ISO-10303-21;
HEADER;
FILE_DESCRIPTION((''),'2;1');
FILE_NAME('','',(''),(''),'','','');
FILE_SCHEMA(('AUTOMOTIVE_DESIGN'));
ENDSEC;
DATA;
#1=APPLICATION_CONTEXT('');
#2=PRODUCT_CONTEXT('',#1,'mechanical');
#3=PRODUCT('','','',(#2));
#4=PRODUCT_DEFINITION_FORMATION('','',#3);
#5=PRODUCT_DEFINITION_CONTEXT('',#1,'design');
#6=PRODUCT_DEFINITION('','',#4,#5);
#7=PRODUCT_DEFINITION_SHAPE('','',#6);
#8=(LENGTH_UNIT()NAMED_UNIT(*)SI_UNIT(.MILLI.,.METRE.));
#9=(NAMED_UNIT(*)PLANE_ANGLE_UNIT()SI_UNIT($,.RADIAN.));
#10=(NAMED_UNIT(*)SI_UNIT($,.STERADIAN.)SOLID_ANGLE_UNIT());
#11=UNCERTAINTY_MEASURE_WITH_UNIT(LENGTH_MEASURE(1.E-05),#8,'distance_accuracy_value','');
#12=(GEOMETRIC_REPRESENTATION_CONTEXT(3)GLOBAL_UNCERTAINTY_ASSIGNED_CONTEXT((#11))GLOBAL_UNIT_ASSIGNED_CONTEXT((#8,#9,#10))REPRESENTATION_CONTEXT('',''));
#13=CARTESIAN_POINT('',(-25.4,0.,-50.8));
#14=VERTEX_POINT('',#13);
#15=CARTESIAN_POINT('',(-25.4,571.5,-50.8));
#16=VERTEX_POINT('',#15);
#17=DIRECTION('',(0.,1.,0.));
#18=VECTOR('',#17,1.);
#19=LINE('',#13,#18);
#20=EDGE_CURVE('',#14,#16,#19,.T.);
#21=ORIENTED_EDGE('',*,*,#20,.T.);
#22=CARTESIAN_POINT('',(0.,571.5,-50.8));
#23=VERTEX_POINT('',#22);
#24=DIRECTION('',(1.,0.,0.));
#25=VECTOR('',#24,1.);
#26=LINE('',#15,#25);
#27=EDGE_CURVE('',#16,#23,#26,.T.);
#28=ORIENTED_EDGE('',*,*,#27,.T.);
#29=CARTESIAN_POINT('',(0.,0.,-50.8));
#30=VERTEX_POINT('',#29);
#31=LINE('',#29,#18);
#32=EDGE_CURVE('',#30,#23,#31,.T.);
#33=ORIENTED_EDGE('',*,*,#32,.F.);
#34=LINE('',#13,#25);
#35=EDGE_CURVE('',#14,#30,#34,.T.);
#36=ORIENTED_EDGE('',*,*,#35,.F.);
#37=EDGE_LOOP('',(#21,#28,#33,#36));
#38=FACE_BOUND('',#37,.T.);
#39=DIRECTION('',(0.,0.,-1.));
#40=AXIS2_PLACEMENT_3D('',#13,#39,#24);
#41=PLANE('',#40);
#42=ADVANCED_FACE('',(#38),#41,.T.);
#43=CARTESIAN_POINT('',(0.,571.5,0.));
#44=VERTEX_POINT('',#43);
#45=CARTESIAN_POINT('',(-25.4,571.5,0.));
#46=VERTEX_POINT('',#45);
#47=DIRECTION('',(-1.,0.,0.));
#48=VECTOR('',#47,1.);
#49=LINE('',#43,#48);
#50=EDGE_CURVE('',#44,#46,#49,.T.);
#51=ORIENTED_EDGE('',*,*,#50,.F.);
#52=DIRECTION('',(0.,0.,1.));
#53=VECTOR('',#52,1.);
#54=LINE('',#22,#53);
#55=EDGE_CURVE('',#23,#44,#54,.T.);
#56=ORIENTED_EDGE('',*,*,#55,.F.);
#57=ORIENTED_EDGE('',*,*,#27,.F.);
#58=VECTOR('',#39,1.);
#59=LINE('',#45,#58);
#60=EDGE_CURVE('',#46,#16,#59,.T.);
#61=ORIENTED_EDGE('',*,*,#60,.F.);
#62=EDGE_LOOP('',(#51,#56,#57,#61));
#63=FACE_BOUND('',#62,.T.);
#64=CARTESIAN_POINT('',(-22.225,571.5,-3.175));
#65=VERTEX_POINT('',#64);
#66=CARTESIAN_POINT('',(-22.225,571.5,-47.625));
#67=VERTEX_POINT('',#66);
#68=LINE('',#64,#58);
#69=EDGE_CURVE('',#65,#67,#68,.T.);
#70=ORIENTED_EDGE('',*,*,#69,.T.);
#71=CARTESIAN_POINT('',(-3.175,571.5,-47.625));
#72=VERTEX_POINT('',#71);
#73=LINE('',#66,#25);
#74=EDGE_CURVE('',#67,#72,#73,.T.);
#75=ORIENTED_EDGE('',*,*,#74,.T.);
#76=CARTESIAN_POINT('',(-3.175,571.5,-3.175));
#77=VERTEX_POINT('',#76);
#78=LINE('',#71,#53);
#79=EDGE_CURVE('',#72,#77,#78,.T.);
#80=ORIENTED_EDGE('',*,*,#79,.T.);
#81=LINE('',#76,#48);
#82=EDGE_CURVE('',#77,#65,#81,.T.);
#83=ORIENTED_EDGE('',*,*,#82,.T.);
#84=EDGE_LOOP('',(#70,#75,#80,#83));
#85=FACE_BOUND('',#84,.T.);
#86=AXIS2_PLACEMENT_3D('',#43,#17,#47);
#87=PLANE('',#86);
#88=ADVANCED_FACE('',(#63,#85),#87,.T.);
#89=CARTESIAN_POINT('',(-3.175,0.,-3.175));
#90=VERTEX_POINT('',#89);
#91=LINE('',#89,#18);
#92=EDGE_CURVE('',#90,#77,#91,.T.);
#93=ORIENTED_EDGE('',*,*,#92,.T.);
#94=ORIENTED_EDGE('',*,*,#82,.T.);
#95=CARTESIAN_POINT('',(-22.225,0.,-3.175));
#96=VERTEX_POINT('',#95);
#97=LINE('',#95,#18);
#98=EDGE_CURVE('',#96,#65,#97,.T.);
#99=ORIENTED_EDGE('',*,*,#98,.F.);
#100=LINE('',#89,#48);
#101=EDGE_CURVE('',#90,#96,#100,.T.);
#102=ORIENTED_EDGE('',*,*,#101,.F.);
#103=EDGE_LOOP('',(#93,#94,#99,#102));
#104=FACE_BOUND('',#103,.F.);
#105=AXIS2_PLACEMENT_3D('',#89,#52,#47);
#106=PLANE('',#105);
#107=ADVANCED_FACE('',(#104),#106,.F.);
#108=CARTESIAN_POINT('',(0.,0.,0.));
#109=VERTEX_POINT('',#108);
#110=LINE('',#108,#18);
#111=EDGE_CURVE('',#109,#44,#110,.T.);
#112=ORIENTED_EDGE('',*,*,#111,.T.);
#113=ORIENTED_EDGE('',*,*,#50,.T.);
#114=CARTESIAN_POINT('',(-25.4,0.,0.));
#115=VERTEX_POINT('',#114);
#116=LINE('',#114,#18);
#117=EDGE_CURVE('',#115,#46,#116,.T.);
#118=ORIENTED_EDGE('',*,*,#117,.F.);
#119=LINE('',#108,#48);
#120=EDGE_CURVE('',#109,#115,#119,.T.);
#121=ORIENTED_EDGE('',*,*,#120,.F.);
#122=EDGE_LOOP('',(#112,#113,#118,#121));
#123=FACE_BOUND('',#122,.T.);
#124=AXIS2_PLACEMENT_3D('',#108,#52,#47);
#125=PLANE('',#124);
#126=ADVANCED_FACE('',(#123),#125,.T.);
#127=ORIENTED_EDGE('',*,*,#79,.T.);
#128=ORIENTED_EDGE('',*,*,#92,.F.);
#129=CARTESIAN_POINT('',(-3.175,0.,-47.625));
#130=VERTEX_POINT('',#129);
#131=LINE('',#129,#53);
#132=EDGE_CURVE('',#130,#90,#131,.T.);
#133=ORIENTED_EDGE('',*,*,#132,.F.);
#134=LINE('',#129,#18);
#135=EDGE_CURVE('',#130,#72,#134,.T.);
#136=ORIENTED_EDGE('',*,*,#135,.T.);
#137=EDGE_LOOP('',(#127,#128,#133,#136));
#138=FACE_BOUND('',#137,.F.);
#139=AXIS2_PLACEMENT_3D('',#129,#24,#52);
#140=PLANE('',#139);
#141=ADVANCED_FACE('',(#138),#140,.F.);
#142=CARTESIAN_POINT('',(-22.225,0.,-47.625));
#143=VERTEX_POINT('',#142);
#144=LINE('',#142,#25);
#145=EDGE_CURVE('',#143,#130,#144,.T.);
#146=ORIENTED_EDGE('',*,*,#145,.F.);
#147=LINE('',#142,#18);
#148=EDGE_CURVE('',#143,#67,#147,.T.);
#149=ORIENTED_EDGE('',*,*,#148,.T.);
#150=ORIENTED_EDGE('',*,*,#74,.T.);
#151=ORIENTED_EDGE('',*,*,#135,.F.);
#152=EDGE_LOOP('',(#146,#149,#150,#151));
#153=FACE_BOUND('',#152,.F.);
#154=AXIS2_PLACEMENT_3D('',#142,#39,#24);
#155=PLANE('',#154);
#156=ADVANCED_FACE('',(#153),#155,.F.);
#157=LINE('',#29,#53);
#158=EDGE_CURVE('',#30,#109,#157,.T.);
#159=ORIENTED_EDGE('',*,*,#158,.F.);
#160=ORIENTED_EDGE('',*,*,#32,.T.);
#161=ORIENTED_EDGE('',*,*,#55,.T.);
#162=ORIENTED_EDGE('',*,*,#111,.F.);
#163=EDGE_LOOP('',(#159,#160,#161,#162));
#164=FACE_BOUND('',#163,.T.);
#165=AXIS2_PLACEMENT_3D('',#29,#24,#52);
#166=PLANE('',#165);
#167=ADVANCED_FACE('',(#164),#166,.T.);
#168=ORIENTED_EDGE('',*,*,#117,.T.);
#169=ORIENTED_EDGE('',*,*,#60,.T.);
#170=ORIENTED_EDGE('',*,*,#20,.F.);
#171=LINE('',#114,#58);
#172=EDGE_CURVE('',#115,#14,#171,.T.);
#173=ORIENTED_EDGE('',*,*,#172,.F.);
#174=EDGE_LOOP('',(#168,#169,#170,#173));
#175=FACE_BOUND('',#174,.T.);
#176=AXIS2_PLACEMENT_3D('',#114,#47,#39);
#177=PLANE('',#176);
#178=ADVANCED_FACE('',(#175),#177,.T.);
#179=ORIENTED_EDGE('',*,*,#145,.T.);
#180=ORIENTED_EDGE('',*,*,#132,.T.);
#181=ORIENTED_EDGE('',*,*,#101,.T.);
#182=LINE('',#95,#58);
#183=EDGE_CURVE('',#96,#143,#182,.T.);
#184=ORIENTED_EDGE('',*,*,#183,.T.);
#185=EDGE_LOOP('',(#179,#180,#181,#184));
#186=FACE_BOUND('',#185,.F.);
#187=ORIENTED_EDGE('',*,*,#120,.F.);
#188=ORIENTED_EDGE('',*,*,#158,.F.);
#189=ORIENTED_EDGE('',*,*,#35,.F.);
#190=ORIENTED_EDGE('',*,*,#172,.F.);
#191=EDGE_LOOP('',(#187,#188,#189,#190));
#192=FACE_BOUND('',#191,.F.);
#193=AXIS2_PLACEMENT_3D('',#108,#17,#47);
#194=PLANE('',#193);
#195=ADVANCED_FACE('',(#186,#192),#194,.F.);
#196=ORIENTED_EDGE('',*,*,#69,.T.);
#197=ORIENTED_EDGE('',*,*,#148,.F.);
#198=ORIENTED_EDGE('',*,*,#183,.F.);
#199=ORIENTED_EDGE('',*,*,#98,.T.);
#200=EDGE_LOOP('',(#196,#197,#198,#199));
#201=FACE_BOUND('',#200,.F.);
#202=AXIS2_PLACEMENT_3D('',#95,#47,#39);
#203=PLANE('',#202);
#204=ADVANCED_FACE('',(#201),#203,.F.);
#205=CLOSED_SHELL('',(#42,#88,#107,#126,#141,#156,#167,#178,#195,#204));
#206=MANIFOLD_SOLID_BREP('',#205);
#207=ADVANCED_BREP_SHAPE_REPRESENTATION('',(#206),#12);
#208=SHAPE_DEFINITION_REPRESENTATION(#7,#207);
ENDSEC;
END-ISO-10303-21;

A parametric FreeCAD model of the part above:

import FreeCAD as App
import Part
import Sketcher
from FreeCAD import Vector
Q = App.Units.Quantity


def add_polygon(sketch, points):
    """Adds a closed chain of lines whose ends are joined by coincident constraints."""
    first, n = sketch.GeometryCount, len(points)
    for a, b in zip(points, points[1:] + points[:1]):
        sketch.addGeometry(Part.LineSegment(App.Vector(*a, 0), App.Vector(*b, 0)), False)
    for i in range(n):
        sketch.addConstraint(Sketcher.Constraint("Coincident", first + i, 2, first + (i + 1) % n, 1))

doc = App.newDocument("Part")
params = doc.addObject("Spreadsheet::Sheet", "Params")
for row, (alias, value) in enumerate([
    ("sketch1_width", "1 in"),
    ("sketch1_height", "2 in"),
    ("pad1_length", "22.5 in"),
], start=1):
    params.set(f"A{row}", alias)
    params.set(f"B{row}", "=" + value)
    params.setAlias(f"B{row}", alias)

body = doc.addObject("PartDesign::Body", "Body")

# Sketch on XZ plane
sketch1 = body.newObject("Sketcher::SketchObject", "Sketch")
sketch1.AttachmentSupport = (doc.getObject("XZ_Plane"), [""])
sketch1.MapMode = "FlatFace"
add_polygon(sketch1, [(-25, 0), (0, 0), (0, -51), (-25, -51)])  # lines 0-3
add_polygon(sketch1, [(-3, -48), (-3, -3), (-22, -3), (-22, -48)])  # lines 4-7
sketch1.addConstraint([
    Sketcher.Constraint("Horizontal", 0),
    Sketcher.Constraint("Vertical", 1),
    Sketcher.Constraint("Horizontal", 2),
    Sketcher.Constraint("Vertical", 3),
    Sketcher.Constraint("Vertical", 4),
    Sketcher.Constraint("Horizontal", 5),
    Sketcher.Constraint("Vertical", 6),
    Sketcher.Constraint("Horizontal", 7),
    Sketcher.Constraint("Coincident", 0, 2, -1, 1),
    Sketcher.Constraint("DistanceX", 0, 1, 0, 2, Q("1 in")),
    Sketcher.Constraint("DistanceY", 1, 2, 1, 1, Q("2 in")),
    Sketcher.Constraint("DistanceX", 4, 2, -1, 1, Q("0.125 in")),
    Sketcher.Constraint("DistanceY", 4, 2, -1, 1, Q("0.125 in")),
    Sketcher.Constraint("DistanceX", 3, 2, 5, 2, Q("0.125 in")),
    Sketcher.Constraint("DistanceY", 2, 2, 6, 2, Q("0.125 in")),
])
sketch1.setExpression("Constraints[17]", "Params.sketch1_width")
sketch1.setExpression("Constraints[18]", "Params.sketch1_height")
pad1 = body.newObject("PartDesign::Pad", "Pad")
pad1.Profile = sketch1
pad1.setExpression("Length", "Params.pad1_length")
pad1.Reversed = True

doc.recompute()
